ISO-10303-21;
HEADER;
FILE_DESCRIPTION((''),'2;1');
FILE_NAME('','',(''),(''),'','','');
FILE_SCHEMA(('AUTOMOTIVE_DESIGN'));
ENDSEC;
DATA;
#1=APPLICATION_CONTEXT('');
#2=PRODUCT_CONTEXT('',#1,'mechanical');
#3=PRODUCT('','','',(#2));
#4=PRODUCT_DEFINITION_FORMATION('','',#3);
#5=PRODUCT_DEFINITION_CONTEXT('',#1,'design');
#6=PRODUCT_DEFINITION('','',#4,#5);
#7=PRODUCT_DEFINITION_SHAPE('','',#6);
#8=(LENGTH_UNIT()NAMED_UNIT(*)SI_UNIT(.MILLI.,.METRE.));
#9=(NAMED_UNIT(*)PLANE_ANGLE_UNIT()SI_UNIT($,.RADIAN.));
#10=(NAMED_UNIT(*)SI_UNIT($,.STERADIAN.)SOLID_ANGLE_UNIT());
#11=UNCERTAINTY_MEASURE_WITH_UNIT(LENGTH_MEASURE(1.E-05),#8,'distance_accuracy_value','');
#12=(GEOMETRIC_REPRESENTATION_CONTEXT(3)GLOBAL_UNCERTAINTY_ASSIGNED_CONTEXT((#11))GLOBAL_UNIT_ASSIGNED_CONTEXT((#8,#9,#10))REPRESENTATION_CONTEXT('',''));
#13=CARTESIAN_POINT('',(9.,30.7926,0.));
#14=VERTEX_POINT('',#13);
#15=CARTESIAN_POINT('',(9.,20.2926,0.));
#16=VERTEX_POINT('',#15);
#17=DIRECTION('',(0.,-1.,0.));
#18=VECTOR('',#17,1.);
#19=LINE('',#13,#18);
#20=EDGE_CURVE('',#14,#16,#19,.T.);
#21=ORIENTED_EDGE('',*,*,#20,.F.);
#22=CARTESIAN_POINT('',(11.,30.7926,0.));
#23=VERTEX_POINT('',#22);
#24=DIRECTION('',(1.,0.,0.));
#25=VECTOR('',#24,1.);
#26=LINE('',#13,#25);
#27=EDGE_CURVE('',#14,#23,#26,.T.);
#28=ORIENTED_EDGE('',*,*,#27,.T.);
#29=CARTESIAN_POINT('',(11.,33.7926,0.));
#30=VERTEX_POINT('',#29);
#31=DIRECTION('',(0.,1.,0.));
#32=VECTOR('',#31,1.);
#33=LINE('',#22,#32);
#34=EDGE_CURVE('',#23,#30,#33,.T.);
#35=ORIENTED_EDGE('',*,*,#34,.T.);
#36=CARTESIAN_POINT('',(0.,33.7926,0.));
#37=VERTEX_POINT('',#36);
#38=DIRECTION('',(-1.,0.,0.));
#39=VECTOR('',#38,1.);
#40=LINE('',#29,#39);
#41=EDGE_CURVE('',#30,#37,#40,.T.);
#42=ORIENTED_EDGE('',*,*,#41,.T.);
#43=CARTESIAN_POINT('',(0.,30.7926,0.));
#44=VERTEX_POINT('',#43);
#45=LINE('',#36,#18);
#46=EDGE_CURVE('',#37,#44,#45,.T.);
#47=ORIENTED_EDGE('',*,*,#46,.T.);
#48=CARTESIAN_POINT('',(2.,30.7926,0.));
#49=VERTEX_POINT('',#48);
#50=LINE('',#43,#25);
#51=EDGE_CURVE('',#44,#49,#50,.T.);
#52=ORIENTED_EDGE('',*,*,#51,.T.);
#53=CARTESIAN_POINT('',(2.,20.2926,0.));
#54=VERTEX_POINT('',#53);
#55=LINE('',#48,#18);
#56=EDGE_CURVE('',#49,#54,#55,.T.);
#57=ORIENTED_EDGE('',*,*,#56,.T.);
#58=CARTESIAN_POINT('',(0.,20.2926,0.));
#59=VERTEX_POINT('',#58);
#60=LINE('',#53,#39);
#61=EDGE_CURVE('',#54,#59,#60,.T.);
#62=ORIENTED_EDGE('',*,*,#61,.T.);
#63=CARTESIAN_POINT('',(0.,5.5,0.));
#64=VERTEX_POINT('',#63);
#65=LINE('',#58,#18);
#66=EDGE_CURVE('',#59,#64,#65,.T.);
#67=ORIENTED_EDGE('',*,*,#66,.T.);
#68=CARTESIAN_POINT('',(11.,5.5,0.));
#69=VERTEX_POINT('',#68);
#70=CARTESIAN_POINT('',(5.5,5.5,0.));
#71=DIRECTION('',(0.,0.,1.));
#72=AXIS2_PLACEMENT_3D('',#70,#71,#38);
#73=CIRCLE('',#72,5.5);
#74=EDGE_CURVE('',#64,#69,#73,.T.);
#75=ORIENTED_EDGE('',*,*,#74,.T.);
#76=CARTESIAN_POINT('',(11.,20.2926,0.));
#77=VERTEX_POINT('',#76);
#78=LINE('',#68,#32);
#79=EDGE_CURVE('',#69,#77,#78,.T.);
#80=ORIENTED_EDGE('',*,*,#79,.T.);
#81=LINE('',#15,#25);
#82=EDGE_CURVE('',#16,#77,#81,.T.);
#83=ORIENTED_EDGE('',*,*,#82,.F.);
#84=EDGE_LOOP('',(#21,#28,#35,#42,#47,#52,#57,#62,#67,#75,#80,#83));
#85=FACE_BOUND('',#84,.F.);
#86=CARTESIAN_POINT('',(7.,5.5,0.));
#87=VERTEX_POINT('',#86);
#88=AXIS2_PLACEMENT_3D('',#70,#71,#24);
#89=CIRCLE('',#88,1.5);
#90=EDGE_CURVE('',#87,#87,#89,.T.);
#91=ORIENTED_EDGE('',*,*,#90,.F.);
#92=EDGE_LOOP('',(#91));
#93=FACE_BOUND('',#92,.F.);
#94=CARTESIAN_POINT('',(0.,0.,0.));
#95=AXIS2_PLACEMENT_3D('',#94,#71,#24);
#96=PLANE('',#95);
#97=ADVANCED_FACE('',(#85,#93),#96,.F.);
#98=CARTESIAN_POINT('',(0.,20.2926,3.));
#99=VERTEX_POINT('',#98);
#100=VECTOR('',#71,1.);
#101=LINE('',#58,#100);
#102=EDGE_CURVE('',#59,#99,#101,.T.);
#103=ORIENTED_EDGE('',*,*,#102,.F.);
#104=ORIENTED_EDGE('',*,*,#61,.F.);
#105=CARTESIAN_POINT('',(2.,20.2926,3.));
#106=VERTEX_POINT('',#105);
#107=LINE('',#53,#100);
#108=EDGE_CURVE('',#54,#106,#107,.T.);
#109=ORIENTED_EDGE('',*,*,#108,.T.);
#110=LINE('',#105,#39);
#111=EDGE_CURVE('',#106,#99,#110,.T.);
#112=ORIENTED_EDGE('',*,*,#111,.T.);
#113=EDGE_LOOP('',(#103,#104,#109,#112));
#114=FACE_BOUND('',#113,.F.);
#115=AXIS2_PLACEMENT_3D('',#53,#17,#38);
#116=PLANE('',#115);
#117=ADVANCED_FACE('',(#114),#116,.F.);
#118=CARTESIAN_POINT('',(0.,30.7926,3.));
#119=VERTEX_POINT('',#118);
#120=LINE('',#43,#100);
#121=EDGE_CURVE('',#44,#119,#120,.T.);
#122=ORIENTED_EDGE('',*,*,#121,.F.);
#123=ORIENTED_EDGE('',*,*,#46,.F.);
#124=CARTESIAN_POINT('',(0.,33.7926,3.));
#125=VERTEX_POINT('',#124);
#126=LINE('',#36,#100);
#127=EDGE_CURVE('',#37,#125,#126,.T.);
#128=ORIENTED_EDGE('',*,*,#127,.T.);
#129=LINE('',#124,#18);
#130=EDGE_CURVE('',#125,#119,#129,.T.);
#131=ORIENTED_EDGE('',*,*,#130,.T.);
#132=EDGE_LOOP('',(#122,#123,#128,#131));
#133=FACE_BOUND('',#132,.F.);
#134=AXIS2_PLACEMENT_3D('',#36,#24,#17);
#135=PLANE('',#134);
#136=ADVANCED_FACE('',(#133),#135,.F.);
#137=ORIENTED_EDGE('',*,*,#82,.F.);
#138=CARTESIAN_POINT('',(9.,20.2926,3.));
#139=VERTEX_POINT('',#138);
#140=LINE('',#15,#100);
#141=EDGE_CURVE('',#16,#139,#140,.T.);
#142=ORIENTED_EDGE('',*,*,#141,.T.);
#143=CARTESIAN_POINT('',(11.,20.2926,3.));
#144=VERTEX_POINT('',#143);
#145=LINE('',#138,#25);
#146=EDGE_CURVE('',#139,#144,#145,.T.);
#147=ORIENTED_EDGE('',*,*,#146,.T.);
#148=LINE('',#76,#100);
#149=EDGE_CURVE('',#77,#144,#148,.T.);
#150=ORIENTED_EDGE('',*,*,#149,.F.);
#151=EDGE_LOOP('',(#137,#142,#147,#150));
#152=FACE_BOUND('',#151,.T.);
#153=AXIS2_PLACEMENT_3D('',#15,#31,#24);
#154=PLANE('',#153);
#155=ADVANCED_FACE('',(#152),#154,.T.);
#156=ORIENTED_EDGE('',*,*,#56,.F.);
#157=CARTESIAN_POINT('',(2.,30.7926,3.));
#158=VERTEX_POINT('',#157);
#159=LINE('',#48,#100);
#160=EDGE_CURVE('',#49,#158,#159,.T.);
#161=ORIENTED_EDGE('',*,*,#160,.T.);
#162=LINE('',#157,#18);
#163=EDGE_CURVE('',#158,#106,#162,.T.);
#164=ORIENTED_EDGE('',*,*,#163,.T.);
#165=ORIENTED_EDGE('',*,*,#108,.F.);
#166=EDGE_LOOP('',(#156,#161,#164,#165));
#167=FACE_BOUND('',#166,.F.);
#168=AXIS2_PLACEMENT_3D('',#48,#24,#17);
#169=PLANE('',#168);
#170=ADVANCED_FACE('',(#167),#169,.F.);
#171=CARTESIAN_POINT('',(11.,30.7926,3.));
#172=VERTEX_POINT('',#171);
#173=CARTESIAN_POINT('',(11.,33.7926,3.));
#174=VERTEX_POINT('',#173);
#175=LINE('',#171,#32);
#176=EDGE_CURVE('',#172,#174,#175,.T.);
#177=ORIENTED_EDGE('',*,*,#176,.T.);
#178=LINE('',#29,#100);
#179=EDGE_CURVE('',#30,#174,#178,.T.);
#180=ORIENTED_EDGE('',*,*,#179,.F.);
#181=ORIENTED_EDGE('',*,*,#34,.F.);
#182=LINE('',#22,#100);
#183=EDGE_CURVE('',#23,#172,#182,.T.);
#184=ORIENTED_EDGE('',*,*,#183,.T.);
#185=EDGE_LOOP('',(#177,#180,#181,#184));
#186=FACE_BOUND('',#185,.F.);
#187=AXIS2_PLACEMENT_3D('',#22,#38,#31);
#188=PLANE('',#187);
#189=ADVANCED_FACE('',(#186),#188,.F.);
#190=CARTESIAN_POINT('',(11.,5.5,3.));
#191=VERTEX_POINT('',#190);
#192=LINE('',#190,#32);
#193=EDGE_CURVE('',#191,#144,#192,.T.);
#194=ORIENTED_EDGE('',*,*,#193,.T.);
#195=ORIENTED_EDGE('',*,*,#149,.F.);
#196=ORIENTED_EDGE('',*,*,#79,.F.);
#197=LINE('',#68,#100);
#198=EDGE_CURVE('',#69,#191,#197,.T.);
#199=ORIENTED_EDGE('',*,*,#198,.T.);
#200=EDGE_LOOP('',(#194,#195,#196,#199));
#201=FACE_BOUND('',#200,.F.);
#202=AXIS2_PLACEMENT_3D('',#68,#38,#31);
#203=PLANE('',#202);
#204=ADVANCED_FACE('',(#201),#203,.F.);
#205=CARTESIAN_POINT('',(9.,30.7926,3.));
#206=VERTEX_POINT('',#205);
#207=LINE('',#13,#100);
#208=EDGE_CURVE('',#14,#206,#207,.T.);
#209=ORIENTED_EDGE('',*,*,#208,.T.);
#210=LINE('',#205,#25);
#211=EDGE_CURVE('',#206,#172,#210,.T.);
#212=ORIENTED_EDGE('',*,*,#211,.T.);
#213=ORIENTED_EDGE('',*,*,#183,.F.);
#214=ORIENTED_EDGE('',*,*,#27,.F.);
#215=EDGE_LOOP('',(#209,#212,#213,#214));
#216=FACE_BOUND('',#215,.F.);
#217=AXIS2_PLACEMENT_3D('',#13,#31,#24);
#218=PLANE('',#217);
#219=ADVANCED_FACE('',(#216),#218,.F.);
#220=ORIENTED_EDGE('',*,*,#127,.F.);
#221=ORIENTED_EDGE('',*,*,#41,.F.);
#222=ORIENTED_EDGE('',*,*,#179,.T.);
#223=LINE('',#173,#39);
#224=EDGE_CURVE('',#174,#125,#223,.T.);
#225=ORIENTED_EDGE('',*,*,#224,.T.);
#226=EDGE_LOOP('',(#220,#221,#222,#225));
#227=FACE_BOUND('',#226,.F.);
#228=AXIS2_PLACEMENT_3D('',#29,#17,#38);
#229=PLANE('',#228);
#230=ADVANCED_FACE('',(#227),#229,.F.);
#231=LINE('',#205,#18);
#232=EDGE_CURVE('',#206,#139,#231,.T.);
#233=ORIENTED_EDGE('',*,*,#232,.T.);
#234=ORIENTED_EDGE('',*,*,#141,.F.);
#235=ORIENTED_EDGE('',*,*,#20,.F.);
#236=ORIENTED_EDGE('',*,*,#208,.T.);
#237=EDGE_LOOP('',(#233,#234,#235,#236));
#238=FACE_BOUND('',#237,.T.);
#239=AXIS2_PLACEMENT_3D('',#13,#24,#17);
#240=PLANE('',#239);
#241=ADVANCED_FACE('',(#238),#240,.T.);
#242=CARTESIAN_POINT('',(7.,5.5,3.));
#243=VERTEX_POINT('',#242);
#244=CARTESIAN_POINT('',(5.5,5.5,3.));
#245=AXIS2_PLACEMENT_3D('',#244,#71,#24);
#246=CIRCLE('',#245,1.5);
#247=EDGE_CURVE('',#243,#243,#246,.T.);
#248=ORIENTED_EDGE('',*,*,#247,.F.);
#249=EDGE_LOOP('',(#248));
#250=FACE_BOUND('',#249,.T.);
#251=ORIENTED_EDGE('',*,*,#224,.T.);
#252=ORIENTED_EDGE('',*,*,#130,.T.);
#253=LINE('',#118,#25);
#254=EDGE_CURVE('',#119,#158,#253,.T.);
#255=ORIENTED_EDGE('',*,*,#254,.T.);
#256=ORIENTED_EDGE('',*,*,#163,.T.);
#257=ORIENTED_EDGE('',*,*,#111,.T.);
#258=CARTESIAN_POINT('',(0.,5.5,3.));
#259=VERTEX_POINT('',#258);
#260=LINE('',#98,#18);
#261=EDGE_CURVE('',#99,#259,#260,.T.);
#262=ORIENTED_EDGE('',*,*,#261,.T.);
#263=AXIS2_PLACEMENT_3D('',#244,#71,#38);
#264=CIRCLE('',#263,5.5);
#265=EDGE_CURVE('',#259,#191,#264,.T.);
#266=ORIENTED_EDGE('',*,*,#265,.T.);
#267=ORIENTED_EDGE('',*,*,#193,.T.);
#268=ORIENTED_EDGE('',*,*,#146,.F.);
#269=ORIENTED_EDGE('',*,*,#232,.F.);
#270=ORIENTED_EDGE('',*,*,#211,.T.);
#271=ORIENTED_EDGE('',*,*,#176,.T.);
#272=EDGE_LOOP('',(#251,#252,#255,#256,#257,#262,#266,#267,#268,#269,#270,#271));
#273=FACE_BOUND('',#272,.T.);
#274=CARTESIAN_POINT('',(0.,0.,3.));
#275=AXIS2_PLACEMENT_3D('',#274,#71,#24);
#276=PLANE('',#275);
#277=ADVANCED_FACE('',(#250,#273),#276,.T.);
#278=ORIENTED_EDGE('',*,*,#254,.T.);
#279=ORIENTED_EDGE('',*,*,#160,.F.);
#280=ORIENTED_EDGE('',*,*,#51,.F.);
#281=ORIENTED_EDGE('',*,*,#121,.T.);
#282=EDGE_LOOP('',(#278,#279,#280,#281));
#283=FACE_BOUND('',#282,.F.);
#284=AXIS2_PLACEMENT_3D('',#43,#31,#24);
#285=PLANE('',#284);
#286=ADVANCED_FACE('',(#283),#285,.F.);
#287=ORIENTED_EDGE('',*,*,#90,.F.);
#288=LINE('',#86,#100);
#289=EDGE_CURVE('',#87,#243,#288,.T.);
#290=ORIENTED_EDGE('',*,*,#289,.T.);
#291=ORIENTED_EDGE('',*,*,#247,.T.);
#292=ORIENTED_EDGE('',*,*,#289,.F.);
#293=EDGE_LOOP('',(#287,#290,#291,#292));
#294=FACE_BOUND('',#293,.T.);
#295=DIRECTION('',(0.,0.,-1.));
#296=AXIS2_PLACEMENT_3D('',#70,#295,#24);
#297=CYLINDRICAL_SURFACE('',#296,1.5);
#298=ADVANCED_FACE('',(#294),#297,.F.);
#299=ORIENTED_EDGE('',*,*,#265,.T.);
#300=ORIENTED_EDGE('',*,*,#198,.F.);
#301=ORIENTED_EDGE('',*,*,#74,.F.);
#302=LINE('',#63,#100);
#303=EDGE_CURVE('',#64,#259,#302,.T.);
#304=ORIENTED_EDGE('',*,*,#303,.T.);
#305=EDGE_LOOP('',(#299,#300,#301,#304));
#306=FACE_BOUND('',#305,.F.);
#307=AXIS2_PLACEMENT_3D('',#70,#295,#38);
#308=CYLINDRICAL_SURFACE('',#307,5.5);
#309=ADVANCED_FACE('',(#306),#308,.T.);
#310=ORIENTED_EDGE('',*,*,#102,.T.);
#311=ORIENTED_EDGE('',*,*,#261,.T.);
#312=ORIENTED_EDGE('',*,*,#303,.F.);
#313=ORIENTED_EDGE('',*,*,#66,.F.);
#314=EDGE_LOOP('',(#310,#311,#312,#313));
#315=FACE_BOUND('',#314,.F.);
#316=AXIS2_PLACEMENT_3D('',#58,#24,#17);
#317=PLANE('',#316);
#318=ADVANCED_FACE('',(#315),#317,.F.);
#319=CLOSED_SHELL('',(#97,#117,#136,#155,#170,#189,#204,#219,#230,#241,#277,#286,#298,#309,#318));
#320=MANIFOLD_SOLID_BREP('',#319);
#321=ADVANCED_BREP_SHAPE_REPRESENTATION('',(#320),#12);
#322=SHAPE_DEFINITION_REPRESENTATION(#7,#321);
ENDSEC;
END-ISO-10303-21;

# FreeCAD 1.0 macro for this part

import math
import FreeCAD as App
import Part
import Sketcher

doc = App.newDocument("Part")
body = doc.addObject("PartDesign::Body", "Body")

sketch1 = doc.addObject("Sketcher::SketchObject", "Sketch")
body.addObject(sketch1)
sketch1.AttachmentSupport = (doc.XY_Plane, [""])
sketch1.MapMode = "FlatFace"
sketch1.addGeometry(Part.LineSegment(App.Vector(11, 30.8, 0), App.Vector(11, 33.8, 0)), False)
sketch1.addGeometry(Part.LineSegment(App.Vector(11, 33.8, 0), App.Vector(0, 33.8, 0)), False)
sketch1.addGeometry(Part.LineSegment(App.Vector(0, 33.8, 0), App.Vector(0, 30.8, 0)), False)
sketch1.addGeometry(Part.LineSegment(App.Vector(0, 30.8, 0), App.Vector(2, 30.8, 0)), False)
sketch1.addGeometry(Part.LineSegment(App.Vector(2, 30.8, 0), App.Vector(2, 20.3, 0)), False)
sketch1.addGeometry(Part.LineSegment(App.Vector(2, 20.3, 0), App.Vector(0, 20.3, 0)), False)
sketch1.addGeometry(Part.LineSegment(App.Vector(0, 20.3, 0), App.Vector(0, 5.5, 0)), False)
sketch1.addGeometry(Part.ArcOfCircle(Part.Circle(App.Vector(5.5, 5.5, 0), App.Vector(0, 0, 1), 5.5), math.radians(180), math.radians(360)), False)
sketch1.addGeometry(Part.LineSegment(App.Vector(11, 5.5, 0), App.Vector(11, 20.3, 0)), False)
sketch1.addGeometry(Part.LineSegment(App.Vector(11, 20.3, 0), App.Vector(9, 20.3, 0)), False)
sketch1.addGeometry(Part.LineSegment(App.Vector(9, 20.3, 0), App.Vector(9, 30.8, 0)), False)
sketch1.addGeometry(Part.LineSegment(App.Vector(9, 30.8, 0), App.Vector(11, 30.8, 0)), False)
sketch1.addGeometry(Part.Circle(App.Vector(5.5, 5.5, 0), App.Vector(0, 0, 1), 1.5), False)
sketch1.addConstraint(Sketcher.Constraint("Coincident", 0, 2, 1, 1))
sketch1.addConstraint(Sketcher.Constraint("Coincident", 1, 2, 2, 1))
sketch1.addConstraint(Sketcher.Constraint("Coincident", 2, 2, 3, 1))
sketch1.addConstraint(Sketcher.Constraint("Coincident", 3, 2, 4, 1))
sketch1.addConstraint(Sketcher.Constraint("Coincident", 4, 2, 5, 1))
sketch1.addConstraint(Sketcher.Constraint("Coincident", 5, 2, 6, 1))
sketch1.addConstraint(Sketcher.Constraint("Tangent", 6, 2, 7, 1))
sketch1.addConstraint(Sketcher.Constraint("Tangent", 7, 2, 8, 1))
sketch1.addConstraint(Sketcher.Constraint("Coincident", 8, 2, 9, 1))
sketch1.addConstraint(Sketcher.Constraint("Coincident", 9, 2, 10, 1))
sketch1.addConstraint(Sketcher.Constraint("Coincident", 10, 2, 11, 1))
sketch1.addConstraint(Sketcher.Constraint("Coincident", 11, 2, 0, 1))
sketch1.addConstraint(Sketcher.Constraint("Vertical", 0))
sketch1.addConstraint(Sketcher.Constraint("Horizontal", 1))
sketch1.addConstraint(Sketcher.Constraint("Vertical", 2))
sketch1.addConstraint(Sketcher.Constraint("Horizontal", 3))
sketch1.addConstraint(Sketcher.Constraint("Vertical", 4))
sketch1.addConstraint(Sketcher.Constraint("Horizontal", 5))
sketch1.addConstraint(Sketcher.Constraint("Vertical", 6))
sketch1.addConstraint(Sketcher.Constraint("Vertical", 8))
sketch1.addConstraint(Sketcher.Constraint("Horizontal", 9))
sketch1.addConstraint(Sketcher.Constraint("Vertical", 10))
sketch1.addConstraint(Sketcher.Constraint("Horizontal", 11))
sketch1.addConstraint(Sketcher.Constraint("Coincident", 12, 3, 7, 3))
sketch1.addConstraint(Sketcher.Constraint("PointOnObject", 1, 2, -2))
sketch1.addConstraint(Sketcher.Constraint("PointOnObject", 5, 2, -2))
sketch1.addConstraint(Sketcher.Constraint("Horizontal", 5, 2, 8, 2))
sketch1.addConstraint(Sketcher.Constraint("Horizontal", 3, 2, 10, 2))
sketch1.addConstraint(Sketcher.Constraint("Vertical", 0, 2, 7, 2))
sketch1.addConstraint(Sketcher.Constraint("Equal", 5, 9))
sketch1.addConstraint(Sketcher.Constraint("Diameter", 12, 3.0))
sketch1.addConstraint(Sketcher.Constraint("Radius", 7, 5.5))
sketch1.addConstraint(Sketcher.Constraint("DistanceX", 3, 1, 3, 2, 2.0))
sketch1.addConstraint(Sketcher.Constraint("DistanceY", 0, 1, 0, 2, 3.0))
sketch1.addConstraint(Sketcher.Constraint("DistanceY", 4, 2, 4, 1, 10.5))
sketch1.addConstraint(Sketcher.Constraint("DistanceY", 6, 2, 6, 1, 14.7926))
sketch1.addConstraint(Sketcher.Constraint("DistanceY", -1, 1, 7, 3, 5.5))
pad1 = doc.addObject("PartDesign::Pad", "Pad")
body.addObject(pad1)
pad1.Profile = sketch1
pad1.Length = 3

doc.recompute()
